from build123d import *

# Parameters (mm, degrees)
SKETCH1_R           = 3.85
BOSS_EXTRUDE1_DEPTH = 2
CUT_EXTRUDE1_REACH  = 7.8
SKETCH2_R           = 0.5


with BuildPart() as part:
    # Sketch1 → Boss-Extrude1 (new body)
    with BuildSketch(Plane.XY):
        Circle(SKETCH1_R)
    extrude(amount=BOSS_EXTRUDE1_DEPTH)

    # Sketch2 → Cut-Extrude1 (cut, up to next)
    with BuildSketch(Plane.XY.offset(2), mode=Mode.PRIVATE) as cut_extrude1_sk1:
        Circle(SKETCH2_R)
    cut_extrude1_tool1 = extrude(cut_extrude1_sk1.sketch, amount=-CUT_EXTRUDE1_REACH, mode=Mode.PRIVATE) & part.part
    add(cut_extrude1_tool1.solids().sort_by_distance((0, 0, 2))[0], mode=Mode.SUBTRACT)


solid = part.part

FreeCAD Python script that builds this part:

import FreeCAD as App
import Part
import Sketcher
from FreeCAD import Vector
Q = App.Units.Quantity

doc = App.newDocument("Part")
params = doc.addObject("Spreadsheet::Sheet", "Params")
for row, (alias, value) in enumerate([
    ("sketch1_diameter", "7.7 mm"),
    ("pad1_length", "2 mm"),
    ("sketch2_diameter", "1 mm"),
], start=1):
    params.set(f"A{row}", alias)
    params.set(f"B{row}", "=" + value)
    params.setAlias(f"B{row}", alias)

body = doc.addObject("PartDesign::Body", "Body")

sketch1 = body.newObject("Sketcher::SketchObject", "Sketch")
sketch1.AttachmentSupport = (doc.getObject("XY_Plane"), [""])
sketch1.MapMode = "FlatFace"
sketch1.addGeometry(Part.Circle(Vector(0, 0, 0), Vector(0, 0, 1), 3.85), False)
sketch1.addConstraint(Sketcher.Constraint("Coincident", 0, 3, -1, 1))
sketch1.addConstraint(Sketcher.Constraint("Diameter", 0, Q("7.7 mm")))
sketch1.setExpression("Constraints[1]", "Params.sketch1_diameter")
pad1 = body.newObject("PartDesign::Pad", "Pad")
pad1.Profile = sketch1
pad1.setExpression("Length", "Params.pad1_length")

sketch2 = body.newObject("Sketcher::SketchObject", "Sketch001")
sketch2.AttachmentSupport = (doc.getObject("XY_Plane"), [""])
sketch2.MapMode = "FlatFace"
sketch2.AttachmentOffset = App.Placement(Vector(0, 0, 2), App.Rotation())
sketch2.addGeometry(Part.Circle(Vector(0, 0, 0), Vector(0, 0, 1), 0.5), False)
sketch2.addConstraint(Sketcher.Constraint("Coincident", 0, 3, -1, 1))
sketch2.addConstraint(Sketcher.Constraint("Diameter", 0, Q("1 mm")))
sketch2.setExpression("Constraints[1]", "Params.sketch2_diameter")
pocket1 = body.newObject("PartDesign::Pocket", "Pocket")
pocket1.Profile = sketch2
pocket1.Type = "UpToFirst"

doc.recompute()
